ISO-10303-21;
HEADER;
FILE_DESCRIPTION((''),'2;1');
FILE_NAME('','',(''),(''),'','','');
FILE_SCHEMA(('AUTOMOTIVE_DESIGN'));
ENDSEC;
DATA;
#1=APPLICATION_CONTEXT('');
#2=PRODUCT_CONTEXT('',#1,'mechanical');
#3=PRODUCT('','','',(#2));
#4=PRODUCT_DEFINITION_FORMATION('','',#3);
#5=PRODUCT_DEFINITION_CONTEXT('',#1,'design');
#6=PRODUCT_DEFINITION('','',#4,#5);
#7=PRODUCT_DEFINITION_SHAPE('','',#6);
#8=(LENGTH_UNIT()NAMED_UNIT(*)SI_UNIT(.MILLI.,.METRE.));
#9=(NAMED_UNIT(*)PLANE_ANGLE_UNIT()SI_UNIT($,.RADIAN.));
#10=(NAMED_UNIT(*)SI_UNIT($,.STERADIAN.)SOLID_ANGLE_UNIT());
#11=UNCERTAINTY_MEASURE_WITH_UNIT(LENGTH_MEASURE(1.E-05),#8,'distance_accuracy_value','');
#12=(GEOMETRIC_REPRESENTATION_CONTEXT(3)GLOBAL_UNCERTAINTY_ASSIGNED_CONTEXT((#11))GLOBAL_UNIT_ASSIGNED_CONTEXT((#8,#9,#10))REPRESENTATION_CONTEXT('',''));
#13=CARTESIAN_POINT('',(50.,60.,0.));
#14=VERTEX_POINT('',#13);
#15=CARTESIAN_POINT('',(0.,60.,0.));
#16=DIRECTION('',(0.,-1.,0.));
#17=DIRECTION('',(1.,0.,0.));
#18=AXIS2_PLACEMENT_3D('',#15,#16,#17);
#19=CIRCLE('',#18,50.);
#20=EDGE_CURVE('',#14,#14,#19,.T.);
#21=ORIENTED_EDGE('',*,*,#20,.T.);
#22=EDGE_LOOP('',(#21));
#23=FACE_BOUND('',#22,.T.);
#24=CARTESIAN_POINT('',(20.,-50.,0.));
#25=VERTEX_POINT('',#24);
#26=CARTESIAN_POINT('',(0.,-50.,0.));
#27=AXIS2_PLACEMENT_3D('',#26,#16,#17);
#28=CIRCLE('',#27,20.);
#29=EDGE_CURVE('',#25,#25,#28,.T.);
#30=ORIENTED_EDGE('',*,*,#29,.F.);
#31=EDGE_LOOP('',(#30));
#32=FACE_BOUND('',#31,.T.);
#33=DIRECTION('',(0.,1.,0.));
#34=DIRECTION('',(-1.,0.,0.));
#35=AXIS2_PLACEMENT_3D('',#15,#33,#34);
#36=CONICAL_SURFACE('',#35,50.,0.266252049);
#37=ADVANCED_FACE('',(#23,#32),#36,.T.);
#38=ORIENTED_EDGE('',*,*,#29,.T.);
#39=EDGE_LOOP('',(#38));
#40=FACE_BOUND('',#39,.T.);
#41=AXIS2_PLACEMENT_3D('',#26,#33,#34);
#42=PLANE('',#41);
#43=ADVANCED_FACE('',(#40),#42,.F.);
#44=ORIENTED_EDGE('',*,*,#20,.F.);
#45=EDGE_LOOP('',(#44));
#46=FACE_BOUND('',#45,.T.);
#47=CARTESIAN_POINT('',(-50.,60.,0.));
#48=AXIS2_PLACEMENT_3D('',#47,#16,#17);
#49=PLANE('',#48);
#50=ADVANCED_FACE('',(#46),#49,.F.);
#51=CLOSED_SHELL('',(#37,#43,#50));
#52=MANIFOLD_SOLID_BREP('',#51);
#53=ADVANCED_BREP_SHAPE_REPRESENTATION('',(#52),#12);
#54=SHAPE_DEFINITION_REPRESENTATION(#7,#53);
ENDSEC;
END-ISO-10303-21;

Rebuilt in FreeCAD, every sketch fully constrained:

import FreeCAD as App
import Part
import Sketcher

V = App.Vector
Q = App.Units.Quantity

doc = App.newDocument("Part")
body = doc.addObject("PartDesign::Body", "Body")

# Sketch on XY plane
sketch1 = body.newObject("Sketcher::SketchObject", "Sketch")
sketch1.AttachmentSupport = (doc.getObject("XY_Plane"), [""])
sketch1.MapMode = "FlatFace"
sketch1.addGeometry(Part.LineSegment(V(-20, -50, 0), V(0, -50, 0)), False)
sketch1.addGeometry(Part.LineSegment(V(0, -50, 0), V(0, 60, 0)), False)
sketch1.addGeometry(Part.LineSegment(V(0, 60, 0), V(-50, 60, 0)), False)
sketch1.addGeometry(Part.LineSegment(V(-50, 60, 0), V(-20, -50, 0)), False)
sketch1.addConstraint(Sketcher.Constraint("Coincident", 0, 2, 1, 1))
sketch1.addConstraint(Sketcher.Constraint("Coincident", 1, 2, 2, 1))
sketch1.addConstraint(Sketcher.Constraint("Coincident", 2, 2, 3, 1))
sketch1.addConstraint(Sketcher.Constraint("Coincident", 3, 2, 0, 1))
sketch1.addConstraint(Sketcher.Constraint("Horizontal", 0))
sketch1.addConstraint(Sketcher.Constraint("Vertical", 1))
sketch1.addConstraint(Sketcher.Constraint("Horizontal", 2))
sketch1.addConstraint(Sketcher.Constraint("PointOnObject", 0, 2, -2))
sketch1.addConstraint(Sketcher.Constraint("DistanceX", 0, 1, 0, 2, Q("20 mm")))
sketch1.addConstraint(Sketcher.Constraint("DistanceX", 2, 2, 2, 1, Q("50 mm")))
sketch1.addConstraint(Sketcher.Constraint("DistanceY", 1, 1, 1, 2, Q("110 mm")))
sketch1.addConstraint(Sketcher.Constraint("DistanceY", 0, 2, -1, 1, Q("50 mm")))
revolution = body.newObject("PartDesign::Revolution", "Revolution")
revolution.Profile = sketch1
revolution.ReferenceAxis = (sketch1, ["V_Axis"])
revolution.Angle = 360

doc.recompute()
